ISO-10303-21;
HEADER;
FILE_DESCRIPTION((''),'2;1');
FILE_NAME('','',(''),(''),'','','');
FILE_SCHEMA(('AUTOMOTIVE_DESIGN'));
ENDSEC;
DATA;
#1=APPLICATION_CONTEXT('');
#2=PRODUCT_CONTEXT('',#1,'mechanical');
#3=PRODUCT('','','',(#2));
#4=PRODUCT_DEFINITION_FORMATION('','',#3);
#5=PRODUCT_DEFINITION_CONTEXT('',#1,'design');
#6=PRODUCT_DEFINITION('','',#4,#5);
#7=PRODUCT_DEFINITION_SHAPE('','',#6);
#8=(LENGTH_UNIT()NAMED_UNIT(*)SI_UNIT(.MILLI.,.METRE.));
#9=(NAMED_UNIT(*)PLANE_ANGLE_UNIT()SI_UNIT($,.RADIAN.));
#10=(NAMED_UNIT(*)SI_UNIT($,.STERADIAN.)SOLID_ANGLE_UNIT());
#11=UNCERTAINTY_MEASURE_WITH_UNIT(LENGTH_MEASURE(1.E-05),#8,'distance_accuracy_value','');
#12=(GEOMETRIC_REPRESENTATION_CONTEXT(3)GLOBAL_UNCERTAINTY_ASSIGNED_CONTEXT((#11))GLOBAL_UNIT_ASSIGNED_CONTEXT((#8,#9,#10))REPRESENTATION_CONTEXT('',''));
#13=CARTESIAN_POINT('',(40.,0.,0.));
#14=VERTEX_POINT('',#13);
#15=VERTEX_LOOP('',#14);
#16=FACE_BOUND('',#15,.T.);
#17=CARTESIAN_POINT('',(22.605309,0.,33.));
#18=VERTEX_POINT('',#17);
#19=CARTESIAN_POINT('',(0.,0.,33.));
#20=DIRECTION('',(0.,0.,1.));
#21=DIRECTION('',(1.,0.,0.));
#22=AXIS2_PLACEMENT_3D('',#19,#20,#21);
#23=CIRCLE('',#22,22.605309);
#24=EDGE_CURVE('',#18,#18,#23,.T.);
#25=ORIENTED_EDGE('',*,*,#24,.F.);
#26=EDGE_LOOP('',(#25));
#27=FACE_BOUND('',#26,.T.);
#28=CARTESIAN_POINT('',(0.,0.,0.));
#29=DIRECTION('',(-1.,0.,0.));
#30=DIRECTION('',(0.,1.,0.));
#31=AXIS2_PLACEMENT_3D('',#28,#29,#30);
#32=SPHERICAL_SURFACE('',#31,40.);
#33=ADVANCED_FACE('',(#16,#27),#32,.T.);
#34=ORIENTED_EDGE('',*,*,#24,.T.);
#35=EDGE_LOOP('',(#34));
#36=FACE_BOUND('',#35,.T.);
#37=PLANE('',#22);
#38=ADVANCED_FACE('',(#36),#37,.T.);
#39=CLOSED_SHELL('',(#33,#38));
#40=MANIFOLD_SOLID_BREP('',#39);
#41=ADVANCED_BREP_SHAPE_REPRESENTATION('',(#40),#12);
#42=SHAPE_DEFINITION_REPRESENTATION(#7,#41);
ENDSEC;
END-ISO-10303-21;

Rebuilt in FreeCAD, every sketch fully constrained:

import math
import FreeCAD as App
import Part
import Sketcher

doc = App.newDocument("Part")
params = doc.addObject("Spreadsheet::Sheet", "Params")
for row, (alias, value) in enumerate([
    ("sketch1_radius", "40 mm"),
    ("revolution_angle", "360 deg"),
], start=1):
    params.set(f"A{row}", alias)
    params.set(f"B{row}", "=" + value)
    params.setAlias(f"B{row}", alias)

body = doc.addObject("PartDesign::Body", "Body")

# Sketch on XY plane
sketch1 = body.newObject("Sketcher::SketchObject", "Sketch")
sketch1.AttachmentSupport = (doc.getObject("XY_Plane"), [""])
sketch1.MapMode = "FlatFace"
sketch1.addGeometry([
    Part.LineSegment(App.Vector(-40, 0, 0), App.Vector(40, 0, 0)),
    Part.ArcOfCircle(Part.Circle(App.Vector(0, 0, 0), App.Vector(0, 0, 1), 40), math.radians(0), math.radians(180)),
], False)
sketch1.addConstraint([
    Sketcher.Constraint("Coincident", 0, 1, 1, 2),
    Sketcher.Constraint("Coincident", 1, 1, 0, 2),
    Sketcher.Constraint("Horizontal", 0),
    Sketcher.Constraint("Coincident", 1, 3, -1, 1),
    Sketcher.Constraint("PointOnObject", 0, 1, -1),
    Sketcher.Constraint("Radius", 1, 40.0),
])
sketch1.setExpression("Constraints[5]", "Params.sketch1_radius")
revolution = body.newObject("PartDesign::Revolution", "Revolution")
revolution.Profile = sketch1
revolution.ReferenceAxis = (sketch1, ["H_Axis"])
revolution.setExpression("Angle", "Params.revolution_angle")

# Sketch on XY plane
sketch2 = body.newObject("Sketcher::SketchObject", "Sketch001")
sketch2.AttachmentSupport = (doc.getObject("XY_Plane"), [""])
sketch2.MapMode = "FlatFace"
sketch2.AttachmentOffset = App.Placement(App.Vector(0, 0, 33), App.Rotation())
sketch2.addGeometry(Part.Circle(App.Vector(0, 0, 0), App.Vector(0, 0, 1), 23), False)
sketch2.addConstraint([
    Sketcher.Constraint("Coincident", 0, 3, -1, 1),
    Sketcher.Constraint("Diameter", 0, 45.210618),
])
pocket1 = body.newObject("PartDesign::Pocket", "Pocket")
pocket1.Profile = sketch2
pocket1.Type = "ThroughAll"
pocket1.Reversed = True

doc.recompute()
